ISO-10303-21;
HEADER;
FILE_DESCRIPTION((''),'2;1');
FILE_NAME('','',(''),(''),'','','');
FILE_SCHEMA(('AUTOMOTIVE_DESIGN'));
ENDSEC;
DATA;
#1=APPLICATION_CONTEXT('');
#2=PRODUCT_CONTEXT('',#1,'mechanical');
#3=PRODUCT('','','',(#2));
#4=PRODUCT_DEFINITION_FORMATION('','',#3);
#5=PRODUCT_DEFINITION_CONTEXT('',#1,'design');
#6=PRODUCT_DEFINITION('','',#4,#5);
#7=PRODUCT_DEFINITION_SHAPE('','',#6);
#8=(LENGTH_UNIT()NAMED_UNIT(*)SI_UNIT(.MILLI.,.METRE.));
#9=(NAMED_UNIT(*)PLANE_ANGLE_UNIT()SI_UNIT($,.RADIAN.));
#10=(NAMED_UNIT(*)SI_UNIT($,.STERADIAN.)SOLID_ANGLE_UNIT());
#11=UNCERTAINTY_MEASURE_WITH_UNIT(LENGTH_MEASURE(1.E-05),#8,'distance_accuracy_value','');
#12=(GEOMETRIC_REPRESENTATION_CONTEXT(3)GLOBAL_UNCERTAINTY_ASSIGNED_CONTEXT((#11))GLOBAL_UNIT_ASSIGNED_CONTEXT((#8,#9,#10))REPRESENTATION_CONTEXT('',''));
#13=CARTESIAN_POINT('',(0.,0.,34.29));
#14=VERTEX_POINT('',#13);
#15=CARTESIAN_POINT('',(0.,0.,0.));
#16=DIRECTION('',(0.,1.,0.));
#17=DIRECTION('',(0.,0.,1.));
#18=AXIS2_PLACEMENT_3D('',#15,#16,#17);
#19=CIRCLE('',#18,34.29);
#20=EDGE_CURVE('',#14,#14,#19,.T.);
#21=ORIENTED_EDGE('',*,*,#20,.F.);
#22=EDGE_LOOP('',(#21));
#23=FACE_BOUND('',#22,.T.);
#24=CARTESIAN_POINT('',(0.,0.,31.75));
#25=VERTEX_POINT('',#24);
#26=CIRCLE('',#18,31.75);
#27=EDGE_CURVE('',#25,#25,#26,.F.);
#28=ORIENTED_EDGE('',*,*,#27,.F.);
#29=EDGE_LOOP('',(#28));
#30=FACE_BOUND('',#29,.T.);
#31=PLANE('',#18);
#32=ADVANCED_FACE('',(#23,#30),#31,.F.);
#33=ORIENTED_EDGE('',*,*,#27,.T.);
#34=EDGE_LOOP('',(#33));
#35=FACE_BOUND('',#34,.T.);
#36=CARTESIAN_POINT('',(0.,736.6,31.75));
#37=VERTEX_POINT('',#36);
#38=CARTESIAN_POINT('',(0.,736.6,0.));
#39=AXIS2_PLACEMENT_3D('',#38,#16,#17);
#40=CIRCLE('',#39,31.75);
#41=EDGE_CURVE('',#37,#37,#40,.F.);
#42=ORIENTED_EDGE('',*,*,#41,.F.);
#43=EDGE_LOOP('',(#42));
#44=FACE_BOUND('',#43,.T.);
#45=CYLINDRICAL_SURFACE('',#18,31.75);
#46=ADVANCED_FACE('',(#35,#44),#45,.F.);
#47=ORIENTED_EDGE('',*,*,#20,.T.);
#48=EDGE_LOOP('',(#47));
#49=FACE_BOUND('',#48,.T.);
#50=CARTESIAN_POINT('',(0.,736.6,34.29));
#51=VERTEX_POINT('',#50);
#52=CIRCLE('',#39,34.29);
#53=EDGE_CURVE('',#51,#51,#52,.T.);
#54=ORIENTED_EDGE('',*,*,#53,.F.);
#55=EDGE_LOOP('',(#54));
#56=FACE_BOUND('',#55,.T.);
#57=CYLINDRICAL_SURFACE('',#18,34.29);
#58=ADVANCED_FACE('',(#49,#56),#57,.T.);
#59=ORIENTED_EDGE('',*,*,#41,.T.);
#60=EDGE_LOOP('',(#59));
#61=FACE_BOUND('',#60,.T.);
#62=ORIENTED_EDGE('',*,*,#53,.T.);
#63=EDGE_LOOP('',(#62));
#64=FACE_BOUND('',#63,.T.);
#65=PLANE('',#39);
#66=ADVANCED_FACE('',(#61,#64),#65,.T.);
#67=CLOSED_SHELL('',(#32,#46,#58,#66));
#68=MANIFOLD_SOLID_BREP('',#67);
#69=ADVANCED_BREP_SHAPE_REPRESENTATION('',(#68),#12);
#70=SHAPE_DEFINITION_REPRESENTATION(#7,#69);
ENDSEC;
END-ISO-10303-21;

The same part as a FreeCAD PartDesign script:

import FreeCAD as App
import Part
import Sketcher
from FreeCAD import Vector
Q = App.Units.Quantity

doc = App.newDocument("Part")
body = doc.addObject("PartDesign::Body", "Body")

# Sketch on XZ plane
sketch1 = body.newObject("Sketcher::SketchObject", "Sketch")
sketch1.AttachmentSupport = (doc.getObject("XZ_Plane"), [""])
sketch1.MapMode = "FlatFace"
sketch1.addGeometry(Part.Circle(Vector(0, 0, 0), Vector(0, 0, 1), 34.29), False)
sketch1.addGeometry(Part.Circle(Vector(0, 0, 0), Vector(0, 0, 1), 31.75), False)
sketch1.addConstraint(Sketcher.Constraint("Coincident", 0, 3, -1, 1))
sketch1.addConstraint(Sketcher.Constraint("Coincident", 1, 3, -1, 1))
sketch1.addConstraint(Sketcher.Constraint("Diameter", 0, Q("2.7 in")))
sketch1.addConstraint(Sketcher.Constraint("Diameter", 1, Q("2.5 in")))

# Sketch on XY plane
sketch2 = body.newObject("Sketcher::SketchObject", "Sketch001")
sketch2.AttachmentSupport = (doc.getObject("XY_Plane"), [""])
sketch2.MapMode = "FlatFace"
sketch2.addGeometry(Part.LineSegment(Vector(0, 0, 0), Vector(0, 736.6, 0)), False)
sketch2.addConstraint(Sketcher.Constraint("Vertical", 0))
sketch2.addConstraint(Sketcher.Constraint("Coincident", 0, 1, -1, 1))
sketch2.addConstraint(Sketcher.Constraint("DistanceY", 0, 1, 0, 2, Q("29 in")))
doc.recompute()

additivepipe = body.newObject("PartDesign::AdditivePipe", "AdditivePipe")
additivepipe.Profile = sketch1
additivepipe.Spine = (sketch2, ["Edge1"])

doc.recompute()
